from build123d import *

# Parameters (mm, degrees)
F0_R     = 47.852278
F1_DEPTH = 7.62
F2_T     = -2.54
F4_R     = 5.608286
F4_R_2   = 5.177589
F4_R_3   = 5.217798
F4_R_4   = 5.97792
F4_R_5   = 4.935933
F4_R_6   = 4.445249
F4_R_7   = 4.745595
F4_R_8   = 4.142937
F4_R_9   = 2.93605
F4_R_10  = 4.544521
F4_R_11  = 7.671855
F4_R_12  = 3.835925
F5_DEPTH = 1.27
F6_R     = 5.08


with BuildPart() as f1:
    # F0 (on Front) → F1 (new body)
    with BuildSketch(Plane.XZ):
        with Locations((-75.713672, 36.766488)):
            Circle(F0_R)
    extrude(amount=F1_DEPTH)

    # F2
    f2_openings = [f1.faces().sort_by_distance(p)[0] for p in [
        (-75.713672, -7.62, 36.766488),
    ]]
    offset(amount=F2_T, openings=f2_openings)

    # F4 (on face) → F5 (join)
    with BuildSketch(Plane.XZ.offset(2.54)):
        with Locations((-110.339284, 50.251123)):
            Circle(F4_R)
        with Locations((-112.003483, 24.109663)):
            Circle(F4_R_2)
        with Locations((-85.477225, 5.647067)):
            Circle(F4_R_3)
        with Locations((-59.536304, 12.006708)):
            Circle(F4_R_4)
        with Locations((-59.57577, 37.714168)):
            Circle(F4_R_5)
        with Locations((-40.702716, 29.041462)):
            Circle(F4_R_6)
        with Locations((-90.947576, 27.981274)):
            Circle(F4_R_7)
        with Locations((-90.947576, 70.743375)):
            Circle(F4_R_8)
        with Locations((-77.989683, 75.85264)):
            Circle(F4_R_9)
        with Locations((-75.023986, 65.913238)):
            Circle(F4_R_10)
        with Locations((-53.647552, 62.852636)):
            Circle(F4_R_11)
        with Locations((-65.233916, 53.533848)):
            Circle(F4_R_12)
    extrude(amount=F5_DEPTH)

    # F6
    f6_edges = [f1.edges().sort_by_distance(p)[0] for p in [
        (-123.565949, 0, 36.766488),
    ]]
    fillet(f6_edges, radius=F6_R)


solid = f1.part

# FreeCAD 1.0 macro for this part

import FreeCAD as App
import Part
import Sketcher
from FreeCAD import Vector
Q = App.Units.Quantity


def edges_at(feature, points):
    """Names of the edges that pass closest to the given points."""
    edges = feature.Shape.Edges
    near = lambda p: min(range(len(edges)), key=lambda i: edges[i].distToShape(Part.Vertex(*p))[0])
    return sorted({f"Edge{near(p) + 1}" for p in points})


def faces_at(feature, points):
    """Names of the faces that lie closest to the given points."""
    faces = feature.Shape.Faces
    near = lambda p: min(range(len(faces)), key=lambda i: faces[i].distToShape(Part.Vertex(*p))[0])
    return sorted({f"Face{near(p) + 1}" for p in points})

doc = App.newDocument("Part")
body = doc.addObject("PartDesign::Body", "Body")

sketch1 = body.newObject("Sketcher::SketchObject", "Sketch")
sketch1.AttachmentSupport = (doc.getObject("XZ_Plane"), [""])
sketch1.MapMode = "FlatFace"
sketch1.addGeometry(Part.Circle(Vector(-76, 37, 0), Vector(0, 0, 1), 48), False)
sketch1.addConstraint([
    Sketcher.Constraint("Diameter", 0, 95.704556),
    Sketcher.Constraint("DistanceY", -1, 1, 0, 3, 36.766488),
    Sketcher.Constraint("DistanceX", 0, 3, -1, 1, 75.713672),
])
pad1 = body.newObject("PartDesign::Pad", "Pad")
pad1.Profile = sketch1
pad1.Length = Q("0.3 in")
doc.recompute()

thickness = body.newObject("PartDesign::Thickness", "Thickness")
thickness.Base = (pad1, faces_at(pad1, [(-75.714, -7.62, 36.766)]))
thickness.Value = Q("0.1 in")
thickness.Reversed = True
thickness.Join = "Arc"

sketch2 = body.newObject("Sketcher::SketchObject", "Sketch001")
sketch2.AttachmentSupport = (doc.getObject("XZ_Plane"), [""])
sketch2.MapMode = "FlatFace"
sketch2.AttachmentOffset = App.Placement(Vector(0, 0, 0.1 * 25.4), App.Rotation())
sketch2.addGeometry([
    Part.Circle(Vector(-110.3, 50.3, 0), Vector(0, 0, 1), 5.6),
    Part.Circle(Vector(-112, 24.1, 0), Vector(0, 0, 1), 5.2),
    Part.Circle(Vector(-85.5, 5.6, 0), Vector(0, 0, 1), 5.2),
    Part.Circle(Vector(-59.5, 12, 0), Vector(0, 0, 1), 6),
    Part.Circle(Vector(-59.6, 37.7, 0), Vector(0, 0, 1), 4.9),
    Part.Circle(Vector(-40.7, 29, 0), Vector(0, 0, 1), 4.4),
    Part.Circle(Vector(-90.9, 28, 0), Vector(0, 0, 1), 4.7),
    Part.Circle(Vector(-90.9, 70.7, 0), Vector(0, 0, 1), 4.1),
    Part.Circle(Vector(-78, 75.9, 0), Vector(0, 0, 1), 2.9),
    Part.Circle(Vector(-75, 65.9, 0), Vector(0, 0, 1), 4.5),
    Part.Circle(Vector(-53.6, 62.9, 0), Vector(0, 0, 1), 7.7),
    Part.Circle(Vector(-65.2, 53.5, 0), Vector(0, 0, 1), 3.8),
], False)
sketch2.addConstraint([
    Sketcher.Constraint("Vertical", 6, 3, 7, 3),
    Sketcher.Constraint("Diameter", 8, 5.8721),
    Sketcher.Constraint("Diameter", 0, 11.216572),
    Sketcher.Constraint("Diameter", 3, 11.95584),
    Sketcher.Constraint("Diameter", 6, 9.49119),
    Sketcher.Constraint("Diameter", 9, 9.089042),
    Sketcher.Constraint("Diameter", 10, 15.34371),
    Sketcher.Constraint("Diameter", 11, 7.67185),
    Sketcher.Constraint("Diameter", 1, 10.355178),
    Sketcher.Constraint("Diameter", 2, 10.435596),
    Sketcher.Constraint("Diameter", 4, 9.871866),
    Sketcher.Constraint("Diameter", 5, 8.890498),
    Sketcher.Constraint("Diameter", 7, 8.285874),
    Sketcher.Constraint("DistanceX", 1, 3, 0, 3, 1.664199),
    Sketcher.Constraint("DistanceY", 2, 3, 4, 3, 32.067101),
    Sketcher.Constraint("DistanceY", 1, 3, 5, 3, 4.931799),
    Sketcher.Constraint("DistanceY", 6, 3, 7, 3, 42.762101),
    Sketcher.Constraint("DistanceX", 0, 3, 8, 3, 32.349601),
    Sketcher.Constraint("DistanceY", 9, 3, 8, 3, 9.939402),
    Sketcher.Constraint("DistanceX", 0, 3, 9, 3, 35.315298),
    Sketcher.Constraint("DistanceX", 4, 3, -1, 1, 59.57577),
    Sketcher.Constraint("DistanceY", -1, 1, 5, 3, 29.041462),
    Sketcher.Constraint("DistanceY", -1, 1, 8, 3, 75.85264),
    Sketcher.Constraint("DistanceX", 10, 3, -1, 1, 53.647552),
    Sketcher.Constraint("DistanceY", 1, 3, 0, 3, 26.14146),
    Sketcher.Constraint("DistanceX", 0, 3, 2, 3, 24.862059),
    Sketcher.Constraint("DistanceX", 2, 3, 3, 3, 25.940921),
    Sketcher.Constraint("DistanceY", 2, 3, 3, 3, 6.359641),
    Sketcher.Constraint("DistanceX", 2, 3, 5, 3, 44.774509),
    Sketcher.Constraint("DistanceY", 1, 3, 6, 3, 3.871611),
    Sketcher.Constraint("DistanceX", 6, 3, 2, 3, 5.470351),
    Sketcher.Constraint("DistanceY", 4, 3, 8, 3, 38.138472),
    Sketcher.Constraint("DistanceX", 8, 3, 10, 3, 24.342131),
    Sketcher.Constraint("DistanceY", 10, 3, 7, 3, 7.890739),
    Sketcher.Constraint("DistanceX", 9, 3, 11, 3, 9.79007),
    Sketcher.Constraint("DistanceY", 11, 3, 9, 3, 12.37939),
])
pad2 = body.newObject("PartDesign::Pad", "Pad001")
pad2.Profile = sketch2
pad2.Length = Q("0.05 in")
doc.recompute()

fillet = body.newObject("PartDesign::Fillet", "Fillet")
fillet.Base = (pad2, edges_at(pad2, [(-123.566, 0, 36.766)]))
fillet.Radius = Q("0.2 in")

doc.recompute()
